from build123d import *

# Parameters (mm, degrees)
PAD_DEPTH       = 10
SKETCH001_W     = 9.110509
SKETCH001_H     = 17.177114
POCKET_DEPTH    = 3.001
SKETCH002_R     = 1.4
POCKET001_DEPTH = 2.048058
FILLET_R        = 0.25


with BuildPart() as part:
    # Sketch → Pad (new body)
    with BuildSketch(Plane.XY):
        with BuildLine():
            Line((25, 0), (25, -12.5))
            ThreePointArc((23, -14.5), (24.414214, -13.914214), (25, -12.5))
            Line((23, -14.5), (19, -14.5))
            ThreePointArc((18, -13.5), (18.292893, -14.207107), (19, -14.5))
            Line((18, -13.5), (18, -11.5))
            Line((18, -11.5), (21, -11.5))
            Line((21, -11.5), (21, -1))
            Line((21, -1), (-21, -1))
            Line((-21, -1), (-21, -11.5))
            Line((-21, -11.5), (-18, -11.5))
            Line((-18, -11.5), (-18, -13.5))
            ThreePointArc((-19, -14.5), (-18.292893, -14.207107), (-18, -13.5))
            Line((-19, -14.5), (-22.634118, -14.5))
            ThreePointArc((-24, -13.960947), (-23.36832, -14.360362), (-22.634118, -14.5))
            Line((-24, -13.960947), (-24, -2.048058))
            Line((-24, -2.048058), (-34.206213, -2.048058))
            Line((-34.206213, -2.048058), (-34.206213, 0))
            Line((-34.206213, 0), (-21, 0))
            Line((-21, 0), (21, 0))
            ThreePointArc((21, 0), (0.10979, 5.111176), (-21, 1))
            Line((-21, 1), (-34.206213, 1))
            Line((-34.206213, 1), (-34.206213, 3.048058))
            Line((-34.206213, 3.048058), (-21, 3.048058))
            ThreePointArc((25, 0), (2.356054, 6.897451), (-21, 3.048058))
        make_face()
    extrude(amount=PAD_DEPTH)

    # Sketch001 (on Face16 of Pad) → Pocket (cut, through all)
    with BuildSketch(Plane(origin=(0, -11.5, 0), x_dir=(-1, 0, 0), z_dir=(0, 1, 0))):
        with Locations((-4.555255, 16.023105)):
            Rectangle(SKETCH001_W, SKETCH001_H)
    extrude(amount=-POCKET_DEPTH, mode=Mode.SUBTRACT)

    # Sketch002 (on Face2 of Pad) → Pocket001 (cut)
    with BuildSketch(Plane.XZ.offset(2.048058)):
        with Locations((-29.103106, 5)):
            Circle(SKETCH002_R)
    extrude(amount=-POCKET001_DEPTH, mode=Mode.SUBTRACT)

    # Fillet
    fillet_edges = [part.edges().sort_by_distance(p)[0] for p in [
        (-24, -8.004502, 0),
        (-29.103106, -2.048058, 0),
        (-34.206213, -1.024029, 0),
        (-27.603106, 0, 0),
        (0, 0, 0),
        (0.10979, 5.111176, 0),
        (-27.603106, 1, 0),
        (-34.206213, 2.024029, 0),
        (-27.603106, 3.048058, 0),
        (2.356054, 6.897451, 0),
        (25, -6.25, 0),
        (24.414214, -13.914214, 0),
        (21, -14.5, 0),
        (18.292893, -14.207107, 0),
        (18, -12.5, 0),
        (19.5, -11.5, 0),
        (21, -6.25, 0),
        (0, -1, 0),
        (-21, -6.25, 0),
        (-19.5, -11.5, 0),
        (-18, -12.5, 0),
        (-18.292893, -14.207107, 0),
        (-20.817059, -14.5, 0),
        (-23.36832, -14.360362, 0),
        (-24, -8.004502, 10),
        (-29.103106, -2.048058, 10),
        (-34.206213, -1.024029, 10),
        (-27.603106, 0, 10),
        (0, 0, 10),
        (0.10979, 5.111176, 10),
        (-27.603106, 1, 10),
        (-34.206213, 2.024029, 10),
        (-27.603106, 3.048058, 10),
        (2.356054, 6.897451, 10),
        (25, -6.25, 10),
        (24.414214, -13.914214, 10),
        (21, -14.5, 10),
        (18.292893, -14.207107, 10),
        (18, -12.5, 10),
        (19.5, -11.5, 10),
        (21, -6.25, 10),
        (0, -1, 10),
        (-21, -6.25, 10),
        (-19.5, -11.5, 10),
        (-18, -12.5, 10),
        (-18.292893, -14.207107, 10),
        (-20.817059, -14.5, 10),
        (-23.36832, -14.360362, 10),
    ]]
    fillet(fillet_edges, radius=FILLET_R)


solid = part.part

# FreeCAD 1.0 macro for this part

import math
import FreeCAD as App
import Part
import Sketcher

V = App.Vector


def edges_at(feature, points):
    """Names of the edges that pass closest to the given points."""
    edges = feature.Shape.Edges
    near = lambda p: min(range(len(edges)), key=lambda i: edges[i].distToShape(Part.Vertex(*p))[0])
    return sorted({f"Edge{near(p) + 1}" for p in points})

doc = App.newDocument("Part")
params = doc.addObject("Spreadsheet::Sheet", "Params")
for row, (alias, value) in enumerate([
    ("sketch1_radius", "2.000002 mm"),
    ("sketch1_radius2", "0.999999 mm"),
    ("sketch1_width", "3 mm"),
    ("sketch1_width2", "42 mm"),
    ("sketch1_width3", "4 mm"),
    ("pad1_length", "10 mm"),
    ("sketch3_diameter", "2.8 mm"),
    ("pocket2_length", "2.048058 mm"),
    ("fillet_radius", "0.25 mm"),
], start=1):
    params.set(f"A{row}", alias)
    params.set(f"B{row}", "=" + value)
    params.setAlias(f"B{row}", alias)

body = doc.addObject("PartDesign::Body", "Body")

# Sketch on XY plane
sketch1 = body.newObject("Sketcher::SketchObject", "Sketch")
sketch1.AttachmentSupport = (doc.getObject("XY_Plane"), [""])
sketch1.MapMode = "FlatFace"
sketch1.addGeometry([
    Part.LineSegment(V(25, -12.5, 0), V(25, 0, 0)),  # 0
    Part.ArcOfCircle(Part.Circle(V(-1.083644, -45.013014, 0), V(0, 0, 1), 52.024301), math.radians(59.90904), math.radians(112.508963)),  # 1
    Part.LineSegment(V(-21, 3.048058, 0), V(-34.206213, 3.048058, 0)),  # 2
    Part.LineSegment(V(-34.206213, 3.048058, 0), V(-34.206213, 1, 0)),  # 3
    Part.LineSegment(V(-34.206213, 1, 0), V(-21, 1, 0)),  # 4
    Part.ArcOfCircle(Part.Circle(V(-1.083643, -45.013016, 0), V(0, 0, 1), 50.138398), math.radians(63.867167), math.radians(113.404978)),  # 5
    Part.LineSegment(V(21, 0, 0), V(-34.206213, 0, 0)),  # 6
    Part.LineSegment(V(-34.206213, 0, 0), V(-34.206213, -2.048058, 0)),  # 7
    Part.LineSegment(V(-34.206213, -2.048058, 0), V(-24, -2.048058, 0)),  # 8
    Part.LineSegment(V(-24, -2.048058, 0), V(-24, -13.960947, 0)),  # 9
    Part.ArcOfCircle(Part.Circle(V(-22.634117, -12.499998, 0), V(0, 0, 1), 2.000002), math.radians(-133.073876), math.radians(-90.000022)),  # 10
    Part.LineSegment(V(-22.634118, -14.5, 0), V(-19, -14.5, 0)),  # 11
    Part.ArcOfCircle(Part.Circle(V(-18.999999, -13.500001, 0), V(0, 0, 1), 0.999999), math.radians(-90.000043), math.radians(0.000043)),  # 12
    Part.LineSegment(V(-18, -13.5, 0), V(-18, -11.5, 0)),  # 13
    Part.LineSegment(V(-18, -11.5, 0), V(-21, -11.5, 0)),  # 14
    Part.LineSegment(V(-21, -11.5, 0), V(-21, -1, 0)),  # 15
    Part.LineSegment(V(-21, -1, 0), V(21, -1, 0)),  # 16
    Part.LineSegment(V(21, -1, 0), V(21, -11.5, 0)),  # 17
    Part.LineSegment(V(21, -11.5, 0), V(18, -11.5, 0)),  # 18
    Part.LineSegment(V(18, -11.5, 0), V(18, -13.5, 0)),  # 19
    Part.ArcOfCircle(Part.Circle(V(18.999999, -13.500001, 0), V(0, 0, 1), 0.999999), math.radians(179.999957), math.radians(270.000043)),  # 20
    Part.LineSegment(V(19, -14.5, 0), V(23, -14.5, 0)),  # 21
    Part.ArcOfCircle(Part.Circle(V(23.000001, -12.500001, 0), V(0, 0, 1), 1.999999), math.radians(-90.000043), math.radians(0.000043)),  # 22
], False)
sketch1.addConstraint([
    Sketcher.Constraint("Coincident", 0, 2, 1, 1),
    Sketcher.Constraint("Coincident", 1, 2, 2, 1),
    Sketcher.Constraint("Coincident", 2, 2, 3, 1),
    Sketcher.Constraint("Coincident", 3, 2, 4, 1),
    Sketcher.Constraint("Coincident", 4, 2, 5, 2),
    Sketcher.Constraint("Coincident", 5, 1, 6, 1),
    Sketcher.Constraint("Coincident", 6, 2, 7, 1),
    Sketcher.Constraint("Coincident", 7, 2, 8, 1),
    Sketcher.Constraint("Coincident", 8, 2, 9, 1),
    Sketcher.Constraint("Coincident", 9, 2, 10, 1),
    Sketcher.Constraint("Tangent", 10, 2, 11, 1),
    Sketcher.Constraint("Tangent", 11, 2, 12, 1),
    Sketcher.Constraint("Tangent", 12, 2, 13, 1),
    Sketcher.Constraint("Coincident", 13, 2, 14, 1),
    Sketcher.Constraint("Coincident", 14, 2, 15, 1),
    Sketcher.Constraint("Coincident", 15, 2, 16, 1),
    Sketcher.Constraint("Coincident", 16, 2, 17, 1),
    Sketcher.Constraint("Coincident", 17, 2, 18, 1),
    Sketcher.Constraint("Coincident", 18, 2, 19, 1),
    Sketcher.Constraint("Tangent", 19, 2, 20, 1),
    Sketcher.Constraint("Tangent", 20, 2, 21, 1),
    Sketcher.Constraint("Tangent", 21, 2, 22, 1),
    Sketcher.Constraint("Tangent", 22, 2, 0, 1),
    Sketcher.Constraint("Vertical", 0),
    Sketcher.Constraint("Horizontal", 2),
    Sketcher.Constraint("Vertical", 3),
    Sketcher.Constraint("Horizontal", 4),
    Sketcher.Constraint("Horizontal", 6),
    Sketcher.Constraint("Vertical", 7),
    Sketcher.Constraint("Horizontal", 8),
    Sketcher.Constraint("Vertical", 9),
    Sketcher.Constraint("Horizontal", 11),
    Sketcher.Constraint("Vertical", 13),
    Sketcher.Constraint("Horizontal", 14),
    Sketcher.Constraint("Vertical", 15),
    Sketcher.Constraint("Horizontal", 16),
    Sketcher.Constraint("Vertical", 17),
    Sketcher.Constraint("Horizontal", 18),
    Sketcher.Constraint("Vertical", 19),
    Sketcher.Constraint("Horizontal", 21),
    Sketcher.Constraint("Coincident", 5, 3, 1, 3),
    Sketcher.Constraint("Equal", 12, 20),
    Sketcher.Constraint("Symmetric", 4, 2, 16, 2, -1, 1),
    Sketcher.Constraint("Symmetric", 12, 3, 20, 3, -2),
    Sketcher.Constraint("Symmetric", 14, 2, 17, 2, -2),
    Sketcher.Constraint("PointOnObject", 0, 2, -1),
    Sketcher.Constraint("PointOnObject", 5, 1, -1),
    Sketcher.Constraint("Horizontal", 10, 3, 22, 2),
    Sketcher.Constraint("Vertical", 1, 2, 4, 2),
    Sketcher.Constraint("Vertical", 3, 2, 6, 2),
    Sketcher.Constraint("Vertical", 5, 1, 16, 2),
    Sketcher.Constraint("Equal", 3, 7),
    Sketcher.Constraint("Radius", 10, 2.000002),
    Sketcher.Constraint("Radius", 12, 0.999999),
    Sketcher.Constraint("DistanceX", 14, 2, 14, 1, 3.0),
    Sketcher.Constraint("DistanceX", 16, 1, 16, 2, 42.0),
    Sketcher.Constraint("DistanceX", 21, 1, 21, 2, 4.0),
    Sketcher.Constraint("DistanceY", 13, 1, 13, 2, 2.0),
    Sketcher.Constraint("DistanceY", 0, 1, 0, 2, 12.5),
    Sketcher.Constraint("DistanceY", 15, 1, 15, 2, 10.5),
    Sketcher.Constraint("DistanceX", 8, 2, -1, 1, 24.0),
    Sketcher.Constraint("Radius", 1, 52.024301),
    Sketcher.Constraint("DistanceX", 11, 1, 11, 2, 3.634118),
    Sketcher.Constraint("DistanceX", 2, 2, 2, 1, 13.206213),
])
sketch1.setExpression("Constraints[52]", "Params.sketch1_radius")
sketch1.setExpression("Constraints[53]", "Params.sketch1_radius2")
sketch1.setExpression("Constraints[54]", "Params.sketch1_width")
sketch1.setExpression("Constraints[55]", "Params.sketch1_width2")
sketch1.setExpression("Constraints[56]", "Params.sketch1_width3")
pad1 = body.newObject("PartDesign::Pad", "Pad")
pad1.Profile = sketch1
pad1.setExpression("Length", "Params.pad1_length")

# Sketch on XZ plane
sketch2 = body.newObject("Sketcher::SketchObject", "Sketch001")
sketch2.AttachmentSupport = (doc.getObject("XZ_Plane"), [""])
sketch2.MapMode = "FlatFace"
sketch2.AttachmentOffset = App.Placement(V(0, 0, 11.5), App.Rotation())
sketch2.addGeometry([
    Part.LineSegment(V(9.110509, 24.611662, 0), V(9.110509, 7.434548, 0)),
    Part.LineSegment(V(9.110509, 7.434548, 0), V(0, 7.434548, 0)),
    Part.LineSegment(V(0, 7.434548, 0), V(0, 24.611662, 0)),
    Part.LineSegment(V(0, 24.611662, 0), V(9.110509, 24.611662, 0)),
], False)
sketch2.addConstraint([
    Sketcher.Constraint("Coincident", 0, 2, 1, 1),
    Sketcher.Constraint("Coincident", 1, 2, 2, 1),
    Sketcher.Constraint("Coincident", 2, 2, 3, 1),
    Sketcher.Constraint("Coincident", 3, 2, 0, 1),
    Sketcher.Constraint("Vertical", 0),
    Sketcher.Constraint("Horizontal", 1),
    Sketcher.Constraint("Vertical", 2),
    Sketcher.Constraint("Horizontal", 3),
    Sketcher.Constraint("PointOnObject", 1, 2, -2),
    Sketcher.Constraint("DistanceX", 1, 2, 1, 1, 9.110509),
    Sketcher.Constraint("DistanceY", 0, 2, 0, 1, 17.177114),
    Sketcher.Constraint("DistanceY", -1, 1, 0, 2, 7.434548),
])
pocket1 = body.newObject("PartDesign::Pocket", "Pocket")
pocket1.Profile = sketch2
pocket1.Type = "ThroughAll"
pocket1.Reversed = True

# Sketch on XZ plane
sketch3 = body.newObject("Sketcher::SketchObject", "Sketch002")
sketch3.AttachmentSupport = (doc.getObject("XZ_Plane"), [""])
sketch3.MapMode = "FlatFace"
sketch3.AttachmentOffset = App.Placement(V(0, 0, 2.048058), App.Rotation())
sketch3.addGeometry(Part.Circle(V(-29.103106, 5, 0), V(0, 0, 1), 1.4), False)
sketch3.addConstraint([
    Sketcher.Constraint("Diameter", 0, 2.8),
    Sketcher.Constraint("DistanceY", -1, 1, 0, 3, 5.0),
    Sketcher.Constraint("DistanceX", 0, 3, -1, 1, 29.103106),
])
sketch3.setExpression("Constraints[0]", "Params.sketch3_diameter")
pocket2 = body.newObject("PartDesign::Pocket", "Pocket001")
pocket2.Profile = sketch3
pocket2.setExpression("Length", "Params.pocket2_length")
doc.recompute()

fillet = body.newObject("PartDesign::Fillet", "Fillet")
fillet.Base = (pocket2, edges_at(pocket2, [
    (-24, -8.005, 0),
    (-29.103, -2.048, 0),
    (-34.206, -1.024, 0),
    (-6.603, 0, 0),
    (-6.603, 0, 0),
    (0.11, 5.111, 0),
    (-27.603, 1, 0),
    (-34.206, 2.024, 0),
    (-27.603, 3.048, 0),
    (2.356, 6.897, 0),
    (25, -6.25, 0),
    (24.414, -13.914, 0),
    (21, -14.5, 0),
    (18.293, -14.207, 0),
    (18, -12.5, 0),
    (19.5, -11.5, 0),
    (21, -6.25, 0),
    (0, -1, 0),
    (-21, -6.25, 0),
    (-19.5, -11.5, 0),
    (-18, -12.5, 0),
    (-18.293, -14.207, 0),
    (-20.817, -14.5, 0),
    (-23.368, -14.36, 0),
    (-24, -8.005, 10),
    (-29.103, -2.048, 10),
    (-34.206, -1.024, 10),
    (-6.603, 0, 10),
    (-6.603, 0, 10),
    (0.11, 5.111, 10),
    (-27.603, 1, 10),
    (-34.206, 2.024, 10),
    (-27.603, 3.048, 10),
    (2.356, 6.897, 10),
    (25, -6.25, 10),
    (24.414, -13.914, 10),
    (21, -14.5, 10),
    (18.293, -14.207, 10),
    (18, -12.5, 10),
    (19.5, -11.5, 10),
    (21, -6.25, 10),
    (0, -1, 10),
    (-21, -6.25, 10),
    (-19.5, -11.5, 10),
    (-18, -12.5, 10),
    (-18.293, -14.207, 10),
    (-20.817, -14.5, 10),
    (-23.368, -14.36, 10),
]))
fillet.setExpression("Radius", "Params.fillet_radius")

doc.recompute()
